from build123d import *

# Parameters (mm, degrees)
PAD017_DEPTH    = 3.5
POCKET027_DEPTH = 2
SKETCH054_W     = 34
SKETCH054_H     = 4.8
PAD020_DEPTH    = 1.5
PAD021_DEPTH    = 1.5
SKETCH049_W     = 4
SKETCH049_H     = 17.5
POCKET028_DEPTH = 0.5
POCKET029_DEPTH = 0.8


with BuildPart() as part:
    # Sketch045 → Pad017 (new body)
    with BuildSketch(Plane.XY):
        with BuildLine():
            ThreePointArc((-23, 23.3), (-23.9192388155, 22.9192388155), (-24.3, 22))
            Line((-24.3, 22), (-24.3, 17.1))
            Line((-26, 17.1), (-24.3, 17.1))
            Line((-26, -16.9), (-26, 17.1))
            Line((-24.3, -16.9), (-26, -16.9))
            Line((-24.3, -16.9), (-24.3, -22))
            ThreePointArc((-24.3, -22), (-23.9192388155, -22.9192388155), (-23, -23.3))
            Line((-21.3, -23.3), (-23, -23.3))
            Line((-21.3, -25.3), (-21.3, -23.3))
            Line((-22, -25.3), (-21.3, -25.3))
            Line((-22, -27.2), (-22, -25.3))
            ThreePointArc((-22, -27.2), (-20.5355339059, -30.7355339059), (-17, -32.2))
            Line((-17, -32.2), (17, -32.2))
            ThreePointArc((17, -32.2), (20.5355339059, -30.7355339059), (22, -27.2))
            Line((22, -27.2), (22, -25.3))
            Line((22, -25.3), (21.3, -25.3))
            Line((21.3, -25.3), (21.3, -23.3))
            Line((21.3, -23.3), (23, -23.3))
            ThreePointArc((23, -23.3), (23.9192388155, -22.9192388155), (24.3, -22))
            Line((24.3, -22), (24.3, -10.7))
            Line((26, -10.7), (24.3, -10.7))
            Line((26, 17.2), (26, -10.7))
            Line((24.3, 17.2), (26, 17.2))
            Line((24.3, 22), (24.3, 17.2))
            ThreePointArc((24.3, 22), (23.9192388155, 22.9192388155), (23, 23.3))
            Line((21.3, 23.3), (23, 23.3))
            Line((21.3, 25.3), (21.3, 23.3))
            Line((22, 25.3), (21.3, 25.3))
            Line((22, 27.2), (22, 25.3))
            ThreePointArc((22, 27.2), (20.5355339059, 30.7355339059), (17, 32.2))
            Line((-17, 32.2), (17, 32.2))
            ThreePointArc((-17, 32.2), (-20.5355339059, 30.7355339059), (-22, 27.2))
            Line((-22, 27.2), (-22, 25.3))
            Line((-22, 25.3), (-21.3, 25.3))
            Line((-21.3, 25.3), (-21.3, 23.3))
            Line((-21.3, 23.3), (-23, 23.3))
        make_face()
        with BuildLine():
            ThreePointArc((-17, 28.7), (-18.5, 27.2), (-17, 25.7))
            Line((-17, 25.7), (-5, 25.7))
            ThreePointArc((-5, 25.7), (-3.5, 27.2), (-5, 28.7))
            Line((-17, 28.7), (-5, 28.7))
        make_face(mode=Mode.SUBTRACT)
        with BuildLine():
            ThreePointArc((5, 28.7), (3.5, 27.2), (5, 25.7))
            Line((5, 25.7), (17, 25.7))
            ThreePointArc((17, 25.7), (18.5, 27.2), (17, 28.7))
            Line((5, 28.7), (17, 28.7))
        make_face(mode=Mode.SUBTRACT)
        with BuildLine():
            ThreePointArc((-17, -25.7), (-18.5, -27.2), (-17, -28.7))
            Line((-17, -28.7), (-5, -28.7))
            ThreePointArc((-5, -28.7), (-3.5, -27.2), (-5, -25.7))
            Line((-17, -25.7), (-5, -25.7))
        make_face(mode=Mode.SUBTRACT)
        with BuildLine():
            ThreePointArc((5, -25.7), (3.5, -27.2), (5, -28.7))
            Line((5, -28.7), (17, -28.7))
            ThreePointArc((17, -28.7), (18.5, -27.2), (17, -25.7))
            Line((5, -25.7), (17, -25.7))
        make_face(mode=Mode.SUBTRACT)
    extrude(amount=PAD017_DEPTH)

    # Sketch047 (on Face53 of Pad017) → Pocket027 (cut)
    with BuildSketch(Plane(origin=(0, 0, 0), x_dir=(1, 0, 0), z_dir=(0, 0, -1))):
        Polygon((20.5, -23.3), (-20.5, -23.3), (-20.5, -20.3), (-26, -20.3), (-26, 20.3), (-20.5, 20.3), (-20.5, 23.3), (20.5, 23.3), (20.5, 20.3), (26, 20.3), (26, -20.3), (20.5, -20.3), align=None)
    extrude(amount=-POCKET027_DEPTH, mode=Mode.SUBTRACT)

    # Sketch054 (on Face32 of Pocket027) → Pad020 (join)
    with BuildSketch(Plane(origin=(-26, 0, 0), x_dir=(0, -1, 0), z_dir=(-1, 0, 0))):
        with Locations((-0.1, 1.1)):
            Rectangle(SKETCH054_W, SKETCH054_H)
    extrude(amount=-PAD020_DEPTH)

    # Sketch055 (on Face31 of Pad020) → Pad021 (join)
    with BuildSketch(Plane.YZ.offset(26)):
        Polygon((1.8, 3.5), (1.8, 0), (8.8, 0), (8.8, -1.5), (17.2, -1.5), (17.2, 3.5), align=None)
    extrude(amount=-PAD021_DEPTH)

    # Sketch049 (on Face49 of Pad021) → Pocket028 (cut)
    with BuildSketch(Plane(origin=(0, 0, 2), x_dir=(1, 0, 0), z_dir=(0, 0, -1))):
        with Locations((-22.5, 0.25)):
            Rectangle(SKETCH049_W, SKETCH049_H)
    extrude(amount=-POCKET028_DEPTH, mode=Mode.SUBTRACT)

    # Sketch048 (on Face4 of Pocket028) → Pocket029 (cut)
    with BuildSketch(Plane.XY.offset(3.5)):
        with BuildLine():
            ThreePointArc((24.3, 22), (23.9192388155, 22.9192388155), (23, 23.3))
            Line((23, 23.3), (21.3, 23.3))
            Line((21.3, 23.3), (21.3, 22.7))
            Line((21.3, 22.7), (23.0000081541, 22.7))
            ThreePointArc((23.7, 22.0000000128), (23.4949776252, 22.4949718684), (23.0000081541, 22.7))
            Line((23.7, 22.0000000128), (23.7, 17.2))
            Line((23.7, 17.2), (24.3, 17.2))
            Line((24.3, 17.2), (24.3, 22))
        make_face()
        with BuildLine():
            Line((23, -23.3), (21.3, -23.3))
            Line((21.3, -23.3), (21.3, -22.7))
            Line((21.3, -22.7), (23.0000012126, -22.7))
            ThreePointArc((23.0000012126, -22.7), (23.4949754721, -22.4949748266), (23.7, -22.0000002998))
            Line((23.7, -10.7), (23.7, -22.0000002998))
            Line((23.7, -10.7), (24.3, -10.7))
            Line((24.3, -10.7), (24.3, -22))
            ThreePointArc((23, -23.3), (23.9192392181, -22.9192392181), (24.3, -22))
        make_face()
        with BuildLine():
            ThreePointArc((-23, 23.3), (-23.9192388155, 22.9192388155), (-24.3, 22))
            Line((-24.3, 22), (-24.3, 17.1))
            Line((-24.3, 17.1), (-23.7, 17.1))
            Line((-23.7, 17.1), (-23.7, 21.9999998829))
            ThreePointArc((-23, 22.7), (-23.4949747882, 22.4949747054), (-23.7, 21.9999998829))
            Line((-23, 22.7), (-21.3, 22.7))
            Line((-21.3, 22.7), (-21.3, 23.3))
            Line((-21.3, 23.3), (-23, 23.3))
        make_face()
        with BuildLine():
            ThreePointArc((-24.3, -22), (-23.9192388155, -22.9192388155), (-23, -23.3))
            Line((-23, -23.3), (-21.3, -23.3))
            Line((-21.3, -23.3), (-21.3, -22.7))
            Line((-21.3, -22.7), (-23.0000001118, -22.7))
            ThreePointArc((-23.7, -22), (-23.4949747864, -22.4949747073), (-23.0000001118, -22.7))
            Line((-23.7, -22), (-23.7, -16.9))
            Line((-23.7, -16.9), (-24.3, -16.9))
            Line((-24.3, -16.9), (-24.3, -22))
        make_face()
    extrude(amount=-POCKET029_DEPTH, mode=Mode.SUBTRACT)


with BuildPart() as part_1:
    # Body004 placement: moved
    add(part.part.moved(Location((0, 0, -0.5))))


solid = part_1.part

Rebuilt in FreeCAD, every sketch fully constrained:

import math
import FreeCAD as App
import Part
import Sketcher
from FreeCAD import Vector
Q = App.Units.Quantity


def add_polygon(sketch, points):
    """Adds a closed chain of lines whose ends are joined by coincident constraints."""
    first, n = sketch.GeometryCount, len(points)
    for a, b in zip(points, points[1:] + points[:1]):
        sketch.addGeometry(Part.LineSegment(App.Vector(*a, 0), App.Vector(*b, 0)), False)
    for i in range(n):
        sketch.addConstraint(Sketcher.Constraint("Coincident", first + i, 2, first + (i + 1) % n, 1))

doc = App.newDocument("Part")
params = doc.addObject("Spreadsheet::Sheet", "Params")
for row, (alias, value) in enumerate([
    ("sketch1_radius", "5 mm"),
    ("sketch1_radius2", "1.3 mm"),
    ("sketch1_radius3", "1.5 mm"),
    ("sketch1_width", "34 mm"),
    ("sketch1_width2", "12 mm"),
    ("pad1_length", "3.5 mm"),
    ("sketch2_width", "41 mm"),
    ("sketch2_height", "3 mm"),
    ("sketch2_width2", "5.5 mm"),
    ("sketch2_height2", "40.6 mm"),
    ("pocket1_length", "2 mm"),
    ("sketch3_width", "34 mm"),
    ("sketch3_height", "4.8 mm"),
    ("pad2_length", "1.5 mm"),
    ("sketch4_width", "7 mm"),
    ("sketch4_height", "5 mm"),
    ("sketch4_width2", "8.4 mm"),
    ("sketch4_height2", "3.5 mm"),
    ("pad3_length", "1.5 mm"),
    ("sketch5_width", "4 mm"),
    ("sketch5_height", "17.5 mm"),
    ("pocket2_length", "0.5 mm"),
    ("sketch6_radius", "1.3 mm"),
    ("sketch6_radius2", "0.7 mm"),
    ("sketch6_width", "1.7 mm"),
    ("sketch6_height", "4.8 mm"),
    ("sketch6_height2", "11.3 mm"),
    ("pocket3_length", "0.8 mm"),
], start=1):
    params.set(f"A{row}", alias)
    params.set(f"B{row}", "=" + value)
    params.setAlias(f"B{row}", alias)

body = doc.addObject("PartDesign::Body", "Body")

# Sketch on XY plane
sketch1 = body.newObject("Sketcher::SketchObject", "Sketch")
sketch1.AttachmentSupport = (doc.getObject("XY_Plane"), [""])
sketch1.MapMode = "FlatFace"
sketch1.addGeometry(Part.ArcOfCircle(Part.Circle(Vector(-23, 22, 0), Vector(0, 0, 1), 1.3), math.radians(90), math.radians(180)), False)
sketch1.addGeometry(Part.LineSegment(Vector(-24.3, 22, 0), Vector(-24.3, 17.1, 0)), False)
sketch1.addGeometry(Part.LineSegment(Vector(-24.3, 17.1, 0), Vector(-26, 17.1, 0)), False)
sketch1.addGeometry(Part.LineSegment(Vector(-26, 17.1, 0), Vector(-26, -16.9, 0)), False)
sketch1.addGeometry(Part.LineSegment(Vector(-26, -16.9, 0), Vector(-24.3, -16.9, 0)), False)
sketch1.addGeometry(Part.LineSegment(Vector(-24.3, -16.9, 0), Vector(-24.3, -22, 0)), False)
sketch1.addGeometry(Part.ArcOfCircle(Part.Circle(Vector(-23, -22, 0), Vector(0, 0, 1), 1.3), math.radians(180), math.radians(270)), False)
sketch1.addGeometry(Part.LineSegment(Vector(-23, -23.3, 0), Vector(-21.3, -23.3, 0)), False)
sketch1.addGeometry(Part.LineSegment(Vector(-21.3, -23.3, 0), Vector(-21.3, -25.3, 0)), False)
sketch1.addGeometry(Part.LineSegment(Vector(-21.3, -25.3, 0), Vector(-22, -25.3, 0)), False)
sketch1.addGeometry(Part.LineSegment(Vector(-22, -25.3, 0), Vector(-22, -27.2, 0)), False)
sketch1.addGeometry(Part.ArcOfCircle(Part.Circle(Vector(-17, -27.2, 0), Vector(0, 0, 1), 5), math.radians(180), math.radians(270)), False)
sketch1.addGeometry(Part.LineSegment(Vector(-17, -32.2, 0), Vector(17, -32.2, 0)), False)
sketch1.addGeometry(Part.ArcOfCircle(Part.Circle(Vector(17, -27.2, 0), Vector(0, 0, 1), 5), math.radians(-90), math.radians(0)), False)
sketch1.addGeometry(Part.LineSegment(Vector(22, -27.2, 0), Vector(22, -25.3, 0)), False)
sketch1.addGeometry(Part.LineSegment(Vector(22, -25.3, 0), Vector(21.3, -25.3, 0)), False)
sketch1.addGeometry(Part.LineSegment(Vector(21.3, -25.3, 0), Vector(21.3, -23.3, 0)), False)
sketch1.addGeometry(Part.LineSegment(Vector(21.3, -23.3, 0), Vector(23, -23.3, 0)), False)
sketch1.addGeometry(Part.ArcOfCircle(Part.Circle(Vector(23, -22, 0), Vector(0, 0, 1), 1.3), math.radians(-90), math.radians(0)), False)
sketch1.addGeometry(Part.LineSegment(Vector(24.3, -22, 0), Vector(24.3, -10.7, 0)), False)
sketch1.addGeometry(Part.LineSegment(Vector(24.3, -10.7, 0), Vector(26, -10.7, 0)), False)
sketch1.addGeometry(Part.LineSegment(Vector(26, -10.7, 0), Vector(26, 17.2, 0)), False)
sketch1.addGeometry(Part.LineSegment(Vector(26, 17.2, 0), Vector(24.3, 17.2, 0)), False)
sketch1.addGeometry(Part.LineSegment(Vector(24.3, 17.2, 0), Vector(24.3, 22, 0)), False)
sketch1.addGeometry(Part.ArcOfCircle(Part.Circle(Vector(23, 22, 0), Vector(0, 0, 1), 1.3), math.radians(0), math.radians(90)), False)
sketch1.addGeometry(Part.LineSegment(Vector(23, 23.3, 0), Vector(21.3, 23.3, 0)), False)
sketch1.addGeometry(Part.LineSegment(Vector(21.3, 23.3, 0), Vector(21.3, 25.3, 0)), False)
sketch1.addGeometry(Part.LineSegment(Vector(21.3, 25.3, 0), Vector(22, 25.3, 0)), False)
sketch1.addGeometry(Part.LineSegment(Vector(22, 25.3, 0), Vector(22, 27.2, 0)), False)
sketch1.addGeometry(Part.ArcOfCircle(Part.Circle(Vector(17, 27.2, 0), Vector(0, 0, 1), 5), math.radians(0), math.radians(90)), False)
sketch1.addGeometry(Part.LineSegment(Vector(17, 32.2, 0), Vector(-17, 32.2, 0)), False)
sketch1.addGeometry(Part.ArcOfCircle(Part.Circle(Vector(-17, 27.2, 0), Vector(0, 0, 1), 5), math.radians(90), math.radians(180)), False)
sketch1.addGeometry(Part.LineSegment(Vector(-22, 27.2, 0), Vector(-22, 25.3, 0)), False)
sketch1.addGeometry(Part.LineSegment(Vector(-22, 25.3, 0), Vector(-21.3, 25.3, 0)), False)
sketch1.addGeometry(Part.LineSegment(Vector(-21.3, 25.3, 0), Vector(-21.3, 23.3, 0)), False)
sketch1.addGeometry(Part.LineSegment(Vector(-21.3, 23.3, 0), Vector(-23, 23.3, 0)), False)
sketch1.addGeometry(Part.ArcOfCircle(Part.Circle(Vector(-17, -27.2, 0), Vector(0, 0, 1), 1.5), math.radians(90), math.radians(270)), False)
sketch1.addGeometry(Part.LineSegment(Vector(-17, -25.7, 0), Vector(-5, -25.7, 0)), False)
sketch1.addGeometry(Part.ArcOfCircle(Part.Circle(Vector(-5, -27.2, 0), Vector(0, 0, 1), 1.5), math.radians(-90), math.radians(90)), False)
sketch1.addGeometry(Part.LineSegment(Vector(-5, -28.7, 0), Vector(-17, -28.7, 0)), False)
sketch1.addGeometry(Part.ArcOfCircle(Part.Circle(Vector(5, -27.2, 0), Vector(0, 0, 1), 1.5), math.radians(90), math.radians(270)), False)
sketch1.addGeometry(Part.LineSegment(Vector(5, -25.7, 0), Vector(17, -25.7, 0)), False)
sketch1.addGeometry(Part.ArcOfCircle(Part.Circle(Vector(17, -27.2, 0), Vector(0, 0, 1), 1.5), math.radians(-90), math.radians(90)), False)
sketch1.addGeometry(Part.LineSegment(Vector(17, -28.7, 0), Vector(5, -28.7, 0)), False)
sketch1.addGeometry(Part.ArcOfCircle(Part.Circle(Vector(-17, 27.2, 0), Vector(0, 0, 1), 1.5), math.radians(90), math.radians(270)), False)
sketch1.addGeometry(Part.LineSegment(Vector(-17, 28.7, 0), Vector(-5, 28.7, 0)), False)
sketch1.addGeometry(Part.ArcOfCircle(Part.Circle(Vector(-5, 27.2, 0), Vector(0, 0, 1), 1.5), math.radians(-90), math.radians(90)), False)
sketch1.addGeometry(Part.LineSegment(Vector(-5, 25.7, 0), Vector(-17, 25.7, 0)), False)
sketch1.addGeometry(Part.ArcOfCircle(Part.Circle(Vector(5, 27.2, 0), Vector(0, 0, 1), 1.5), math.radians(90), math.radians(270)), False)
sketch1.addGeometry(Part.LineSegment(Vector(5, 28.7, 0), Vector(17, 28.7, 0)), False)
sketch1.addGeometry(Part.ArcOfCircle(Part.Circle(Vector(17, 27.2, 0), Vector(0, 0, 1), 1.5), math.radians(-90), math.radians(90)), False)
sketch1.addGeometry(Part.LineSegment(Vector(17, 25.7, 0), Vector(5, 25.7, 0)), False)
sketch1.addConstraint(Sketcher.Constraint("Tangent", 0, 2, 1, 1))
sketch1.addConstraint(Sketcher.Constraint("Coincident", 1, 2, 2, 1))
sketch1.addConstraint(Sketcher.Constraint("Coincident", 2, 2, 3, 1))
sketch1.addConstraint(Sketcher.Constraint("Coincident", 3, 2, 4, 1))
sketch1.addConstraint(Sketcher.Constraint("Coincident", 4, 2, 5, 1))
sketch1.addConstraint(Sketcher.Constraint("Tangent", 5, 2, 6, 1))
sketch1.addConstraint(Sketcher.Constraint("Tangent", 6, 2, 7, 1))
sketch1.addConstraint(Sketcher.Constraint("Coincident", 7, 2, 8, 1))
sketch1.addConstraint(Sketcher.Constraint("Coincident", 8, 2, 9, 1))
sketch1.addConstraint(Sketcher.Constraint("Coincident", 9, 2, 10, 1))
sketch1.addConstraint(Sketcher.Constraint("Tangent", 10, 2, 11, 1))
sketch1.addConstraint(Sketcher.Constraint("Tangent", 11, 2, 12, 1))
sketch1.addConstraint(Sketcher.Constraint("Tangent", 12, 2, 13, 1))
sketch1.addConstraint(Sketcher.Constraint("Tangent", 13, 2, 14, 1))
sketch1.addConstraint(Sketcher.Constraint("Coincident", 14, 2, 15, 1))
sketch1.addConstraint(Sketcher.Constraint("Coincident", 15, 2, 16, 1))
sketch1.addConstraint(Sketcher.Constraint("Coincident", 16, 2, 17, 1))
sketch1.addConstraint(Sketcher.Constraint("Tangent", 17, 2, 18, 1))
sketch1.addConstraint(Sketcher.Constraint("Tangent", 18, 2, 19, 1))
sketch1.addConstraint(Sketcher.Constraint("Coincident", 19, 2, 20, 1))
sketch1.addConstraint(Sketcher.Constraint("Coincident", 20, 2, 21, 1))
sketch1.addConstraint(Sketcher.Constraint("Coincident", 21, 2, 22, 1))
sketch1.addConstraint(Sketcher.Constraint("Coincident", 22, 2, 23, 1))
sketch1.addConstraint(Sketcher.Constraint("Tangent", 23, 2, 24, 1))
sketch1.addConstraint(Sketcher.Constraint("Tangent", 24, 2, 25, 1))
sketch1.addConstraint(Sketcher.Constraint("Coincident", 25, 2, 26, 1))
sketch1.addConstraint(Sketcher.Constraint("Coincident", 26, 2, 27, 1))
sketch1.addConstraint(Sketcher.Constraint("Coincident", 27, 2, 28, 1))
sketch1.addConstraint(Sketcher.Constraint("Tangent", 28, 2, 29, 1))
sketch1.addConstraint(Sketcher.Constraint("Tangent", 29, 2, 30, 1))
sketch1.addConstraint(Sketcher.Constraint("Tangent", 30, 2, 31, 1))
sketch1.addConstraint(Sketcher.Constraint("Tangent", 31, 2, 32, 1))
sketch1.addConstraint(Sketcher.Constraint("Coincident", 32, 2, 33, 1))
sketch1.addConstraint(Sketcher.Constraint("Coincident", 33, 2, 34, 1))
sketch1.addConstraint(Sketcher.Constraint("Coincident", 34, 2, 35, 1))
sketch1.addConstraint(Sketcher.Constraint("Tangent", 35, 2, 0, 1))
sketch1.addConstraint(Sketcher.Constraint("Tangent", 36, 1, 37, 1))
sketch1.addConstraint(Sketcher.Constraint("Tangent", 37, 2, 38, 2))
sketch1.addConstraint(Sketcher.Constraint("Tangent", 38, 1, 39, 1))
sketch1.addConstraint(Sketcher.Constraint("Tangent", 39, 2, 36, 2))
sketch1.addConstraint(Sketcher.Constraint("Tangent", 40, 1, 41, 1))
sketch1.addConstraint(Sketcher.Constraint("Tangent", 41, 2, 42, 2))
sketch1.addConstraint(Sketcher.Constraint("Tangent", 42, 1, 43, 1))
sketch1.addConstraint(Sketcher.Constraint("Tangent", 43, 2, 40, 2))
sketch1.addConstraint(Sketcher.Constraint("Tangent", 44, 1, 45, 1))
sketch1.addConstraint(Sketcher.Constraint("Tangent", 45, 2, 46, 2))
sketch1.addConstraint(Sketcher.Constraint("Tangent", 46, 1, 47, 1))
sketch1.addConstraint(Sketcher.Constraint("Tangent", 47, 2, 44, 2))
sketch1.addConstraint(Sketcher.Constraint("Tangent", 48, 1, 49, 1))
sketch1.addConstraint(Sketcher.Constraint("Tangent", 49, 2, 50, 2))
sketch1.addConstraint(Sketcher.Constraint("Tangent", 50, 1, 51, 1))
sketch1.addConstraint(Sketcher.Constraint("Tangent", 51, 2, 48, 2))
sketch1.addConstraint(Sketcher.Constraint("Vertical", 1))
sketch1.addConstraint(Sketcher.Constraint("Horizontal", 2))
sketch1.addConstraint(Sketcher.Constraint("Vertical", 3))
sketch1.addConstraint(Sketcher.Constraint("Horizontal", 4))
sketch1.addConstraint(Sketcher.Constraint("Vertical", 5))
sketch1.addConstraint(Sketcher.Constraint("Horizontal", 7))
sketch1.addConstraint(Sketcher.Constraint("Vertical", 8))
sketch1.addConstraint(Sketcher.Constraint("Horizontal", 9))
sketch1.addConstraint(Sketcher.Constraint("Vertical", 10))
sketch1.addConstraint(Sketcher.Constraint("Horizontal", 12))
sketch1.addConstraint(Sketcher.Constraint("Vertical", 14))
sketch1.addConstraint(Sketcher.Constraint("Horizontal", 15))
sketch1.addConstraint(Sketcher.Constraint("Vertical", 16))
sketch1.addConstraint(Sketcher.Constraint("Horizontal", 17))
sketch1.addConstraint(Sketcher.Constraint("Vertical", 19))
sketch1.addConstraint(Sketcher.Constraint("Horizontal", 20))
sketch1.addConstraint(Sketcher.Constraint("Vertical", 21))
sketch1.addConstraint(Sketcher.Constraint("Horizontal", 22))
sketch1.addConstraint(Sketcher.Constraint("Vertical", 23))
sketch1.addConstraint(Sketcher.Constraint("Horizontal", 25))
sketch1.addConstraint(Sketcher.Constraint("Vertical", 26))
sketch1.addConstraint(Sketcher.Constraint("Horizontal", 27))
sketch1.addConstraint(Sketcher.Constraint("Vertical", 28))
sketch1.addConstraint(Sketcher.Constraint("Horizontal", 30))
sketch1.addConstraint(Sketcher.Constraint("Vertical", 32))
sketch1.addConstraint(Sketcher.Constraint("Horizontal", 33))
sketch1.addConstraint(Sketcher.Constraint("Vertical", 34))
sketch1.addConstraint(Sketcher.Constraint("Horizontal", 35))
sketch1.addConstraint(Sketcher.Constraint("Horizontal", 37))
sketch1.addConstraint(Sketcher.Constraint("Horizontal", 39))
sketch1.addConstraint(Sketcher.Constraint("Horizontal", 41))
sketch1.addConstraint(Sketcher.Constraint("Horizontal", 43))
sketch1.addConstraint(Sketcher.Constraint("Horizontal", 45))
sketch1.addConstraint(Sketcher.Constraint("Horizontal", 47))
sketch1.addConstraint(Sketcher.Constraint("Horizontal", 49))
sketch1.addConstraint(Sketcher.Constraint("Horizontal", 51))
sketch1.addConstraint(Sketcher.Constraint("Coincident", 36, 3, 11, 3))
sketch1.addConstraint(Sketcher.Constraint("Coincident", 42, 3, 13, 3))
sketch1.addConstraint(Sketcher.Constraint("Coincident", 44, 3, 31, 3))
sketch1.addConstraint(Sketcher.Constraint("Coincident", 50, 3, 29, 3))
sketch1.addConstraint(Sketcher.Constraint("Equal", 0, 6))
sketch1.addConstraint(Sketcher.Constraint("Equal", 11, 13))
sketch1.addConstraint(Sketcher.Constraint("Equal", 6, 18))
sketch1.addConstraint(Sketcher.Constraint("Equal", 18, 24))
sketch1.addConstraint(Sketcher.Constraint("Equal", 13, 29))
sketch1.addConstraint(Sketcher.Constraint("Equal", 29, 31))
sketch1.addConstraint(Sketcher.Constraint("Equal", 38, 40))
sketch1.addConstraint(Sketcher.Constraint("Equal", 42, 44))
sketch1.addConstraint(Sketcher.Constraint("Equal", 46, 48))
sketch1.addConstraint(Sketcher.Constraint("Symmetric", 0, 3, 18, 3, -1, 1))
sketch1.addConstraint(Sketcher.Constraint("Symmetric", 6, 3, 24, 3, -1, 1))
sketch1.addConstraint(Sketcher.Constraint("Symmetric", 11, 3, 29, 3, -1, 1))
sketch1.addConstraint(Sketcher.Constraint("Symmetric", 8, 2, 26, 2, -1, 1))
sketch1.addConstraint(Sketcher.Constraint("Symmetric", 14, 2, 32, 2, -1, 1))
sketch1.addConstraint(Sketcher.Constraint("Symmetric", 6, 3, 18, 3, -2))
sketch1.addConstraint(Sketcher.Constraint("Symmetric", 9, 2, 14, 2, -2))
sketch1.addConstraint(Sketcher.Constraint("Vertical", 38, 3, 46, 3))
sketch1.addConstraint(Sketcher.Constraint("Vertical", 40, 3, 48, 3))
sketch1.addConstraint(Sketcher.Constraint("Vertical", 16, 2, 25, 2))
sketch1.addConstraint(Sketcher.Constraint("Vertical", 8, 2, 33, 2))
sketch1.addConstraint(Sketcher.Constraint("Equal", 4, 7))
sketch1.addConstraint(Sketcher.Constraint("Equal", 17, 20))
sketch1.addConstraint(Sketcher.Constraint("Equal", 39, 41))
sketch1.addConstraint(Sketcher.Constraint("Equal", 30, 3))
sketch1.addConstraint(Sketcher.Constraint("Radius", 11, Q("5 mm")))
sketch1.addConstraint(Sketcher.Constraint("Radius", 0, Q("1.3 mm")))
sketch1.addConstraint(Sketcher.Constraint("Radius", 36, Q("1.5 mm")))
sketch1.addConstraint(Sketcher.Constraint("DistanceX", 12, 1, 12, 2, Q("34 mm")))
sketch1.addConstraint(Sketcher.Constraint("DistanceX", 37, 1, 37, 2, Q("12 mm")))
sketch1.addConstraint(Sketcher.Constraint("DistanceY", 8, 2, 8, 1, Q("2 mm")))
sketch1.addConstraint(Sketcher.Constraint("DistanceX", 2, 2, 2, 1, Q("1.7 mm")))
sketch1.addConstraint(Sketcher.Constraint("DistanceX", 9, 2, 9, 1, Q("0.7 mm")))
sketch1.addConstraint(Sketcher.Constraint("DistanceY", 1, 2, 1, 1, Q("4.9 mm")))
sketch1.addConstraint(Sketcher.Constraint("DistanceY", 5, 2, 5, 1, Q("5.1 mm")))
sketch1.addConstraint(Sketcher.Constraint("DistanceY", 10, 2, 10, 1, Q("1.9 mm")))
sketch1.addConstraint(Sketcher.Constraint("DistanceY", 19, 1, 19, 2, Q("11.3 mm")))
sketch1.addConstraint(Sketcher.Constraint("DistanceY", 21, 1, 21, 2, Q("27.9 mm")))
sketch1.setExpression("Constraints[116]", "Params.sketch1_radius")
sketch1.setExpression("Constraints[117]", "Params.sketch1_radius2")
sketch1.setExpression("Constraints[118]", "Params.sketch1_radius3")
sketch1.setExpression("Constraints[119]", "Params.sketch1_width")
sketch1.setExpression("Constraints[120]", "Params.sketch1_width2")
pad1 = body.newObject("PartDesign::Pad", "Pad")
pad1.Profile = sketch1
pad1.setExpression("Length", "Params.pad1_length")

# Sketch on XY plane
sketch2 = body.newObject("Sketcher::SketchObject", "Sketch001")
sketch2.AttachmentSupport = (doc.getObject("XY_Plane"), [""])
sketch2.MapMode = "FlatFace"
add_polygon(sketch2, [(-20.5, 23.3), (20.5, 23.3), (20.5, 20.3), (26, 20.3), (26, -20.3), (20.5, -20.3), (20.5, -23.3), (-20.5, -23.3), (-20.5, -20.3), (-26, -20.3), (-26, 20.3), (-20.5, 20.3)])  # lines 0-11
sketch2.addConstraint(Sketcher.Constraint("Horizontal", 0))
sketch2.addConstraint(Sketcher.Constraint("Vertical", 1))
sketch2.addConstraint(Sketcher.Constraint("Horizontal", 2))
sketch2.addConstraint(Sketcher.Constraint("Vertical", 3))
sketch2.addConstraint(Sketcher.Constraint("Horizontal", 4))
sketch2.addConstraint(Sketcher.Constraint("Vertical", 5))
sketch2.addConstraint(Sketcher.Constraint("Horizontal", 6))
sketch2.addConstraint(Sketcher.Constraint("Vertical", 7))
sketch2.addConstraint(Sketcher.Constraint("Horizontal", 8))
sketch2.addConstraint(Sketcher.Constraint("Vertical", 9))
sketch2.addConstraint(Sketcher.Constraint("Horizontal", 10))
sketch2.addConstraint(Sketcher.Constraint("Vertical", 11))
sketch2.addConstraint(Sketcher.Constraint("Symmetric", 0, 2, 6, 2, -1, 1))
sketch2.addConstraint(Sketcher.Constraint("Symmetric", 2, 2, 8, 2, -1, 1))
sketch2.addConstraint(Sketcher.Constraint("Symmetric", 4, 2, 10, 2, -1, 1))
sketch2.addConstraint(Sketcher.Constraint("Symmetric", 4, 2, 7, 2, -2))
sketch2.addConstraint(Sketcher.Constraint("DistanceX", 0, 1, 0, 2, Q("41 mm")))
sketch2.addConstraint(Sketcher.Constraint("DistanceY", 1, 2, 1, 1, Q("3 mm")))
sketch2.addConstraint(Sketcher.Constraint("DistanceX", 2, 1, 2, 2, Q("5.5 mm")))
sketch2.addConstraint(Sketcher.Constraint("DistanceY", 3, 2, 3, 1, Q("40.6 mm")))
sketch2.setExpression("Constraints[28]", "Params.sketch2_width")
sketch2.setExpression("Constraints[29]", "Params.sketch2_height")
sketch2.setExpression("Constraints[30]", "Params.sketch2_width2")
sketch2.setExpression("Constraints[31]", "Params.sketch2_height2")
pocket1 = body.newObject("PartDesign::Pocket", "Pocket")
pocket1.Profile = sketch2
pocket1.setExpression("Length", "Params.pocket1_length")
pocket1.Reversed = True

# Sketch on YZ plane
sketch3 = body.newObject("Sketcher::SketchObject", "Sketch002")
sketch3.AttachmentSupport = (doc.getObject("YZ_Plane"), [""])
sketch3.MapMode = "FlatFace"
sketch3.AttachmentOffset = App.Placement(Vector(0, 0, -26), App.Rotation())
add_polygon(sketch3, [(17.1, 3.5), (17.1, -1.3), (-16.9, -1.3), (-16.9, 3.5)])  # lines 0-3
sketch3.addConstraint(Sketcher.Constraint("Vertical", 0))
sketch3.addConstraint(Sketcher.Constraint("Horizontal", 1))
sketch3.addConstraint(Sketcher.Constraint("Vertical", 2))
sketch3.addConstraint(Sketcher.Constraint("Horizontal", 3))
sketch3.addConstraint(Sketcher.Constraint("DistanceX", 1, 2, 1, 1, Q("34 mm")))
sketch3.addConstraint(Sketcher.Constraint("DistanceY", 0, 2, 0, 1, Q("4.8 mm")))
sketch3.addConstraint(Sketcher.Constraint("DistanceX", -1, 1, 0, 2, Q("17.1 mm")))
sketch3.addConstraint(Sketcher.Constraint("DistanceY", 0, 2, -1, 1, Q("1.3 mm")))
sketch3.setExpression("Constraints[8]", "Params.sketch3_width")
sketch3.setExpression("Constraints[9]", "Params.sketch3_height")
pad2 = body.newObject("PartDesign::Pad", "Pad001")
pad2.Profile = sketch3
pad2.setExpression("Length", "Params.pad2_length")

# Sketch on YZ plane
sketch4 = body.newObject("Sketcher::SketchObject", "Sketch003")
sketch4.AttachmentSupport = (doc.getObject("YZ_Plane"), [""])
sketch4.MapMode = "FlatFace"
sketch4.AttachmentOffset = App.Placement(Vector(0, 0, 26), App.Rotation())
add_polygon(sketch4, [(1.8, 3.5), (1.8, 0), (8.8, 0), (8.8, -1.5), (17.2, -1.5), (17.2, 3.5)])  # lines 0-5
sketch4.addConstraint(Sketcher.Constraint("Vertical", 0))
sketch4.addConstraint(Sketcher.Constraint("Horizontal", 1))
sketch4.addConstraint(Sketcher.Constraint("Vertical", 2))
sketch4.addConstraint(Sketcher.Constraint("Horizontal", 3))
sketch4.addConstraint(Sketcher.Constraint("Vertical", 4))
sketch4.addConstraint(Sketcher.Constraint("Horizontal", 5))
sketch4.addConstraint(Sketcher.Constraint("PointOnObject", 0, 2, -1))
sketch4.addConstraint(Sketcher.Constraint("DistanceX", 1, 1, 1, 2, Q("7 mm")))
sketch4.addConstraint(Sketcher.Constraint("DistanceY", 4, 1, 4, 2, Q("5 mm")))
sketch4.addConstraint(Sketcher.Constraint("DistanceX", 3, 1, 3, 2, Q("8.4 mm")))
sketch4.addConstraint(Sketcher.Constraint("DistanceY", 0, 2, 0, 1, Q("3.5 mm")))
sketch4.addConstraint(Sketcher.Constraint("DistanceX", -1, 1, 0, 2, Q("1.8 mm")))
sketch4.setExpression("Constraints[13]", "Params.sketch4_width")
sketch4.setExpression("Constraints[14]", "Params.sketch4_height")
sketch4.setExpression("Constraints[15]", "Params.sketch4_width2")
sketch4.setExpression("Constraints[16]", "Params.sketch4_height2")
pad3 = body.newObject("PartDesign::Pad", "Pad002")
pad3.Profile = sketch4
pad3.setExpression("Length", "Params.pad3_length")
pad3.Reversed = True

# Sketch on XY plane
sketch5 = body.newObject("Sketcher::SketchObject", "Sketch004")
sketch5.AttachmentSupport = (doc.getObject("XY_Plane"), [""])
sketch5.MapMode = "FlatFace"
sketch5.AttachmentOffset = App.Placement(Vector(0, 0, 2), App.Rotation())
add_polygon(sketch5, [(-24.5, -9), (-24.5, 8.5), (-20.5, 8.5), (-20.5, -9)])  # lines 0-3
sketch5.addConstraint(Sketcher.Constraint("Vertical", 0))
sketch5.addConstraint(Sketcher.Constraint("Horizontal", 1))
sketch5.addConstraint(Sketcher.Constraint("Vertical", 2))
sketch5.addConstraint(Sketcher.Constraint("Horizontal", 3))
sketch5.addConstraint(Sketcher.Constraint("DistanceX", 1, 1, 1, 2, Q("4 mm")))
sketch5.addConstraint(Sketcher.Constraint("DistanceY", 0, 1, 0, 2, Q("17.5 mm")))
sketch5.addConstraint(Sketcher.Constraint("DistanceY", 2, 2, -1, 1, Q("9 mm")))
sketch5.addConstraint(Sketcher.Constraint("DistanceX", 0, 2, -1, 1, Q("24.5 mm")))
sketch5.setExpression("Constraints[8]", "Params.sketch5_width")
sketch5.setExpression("Constraints[9]", "Params.sketch5_height")
pocket2 = body.newObject("PartDesign::Pocket", "Pocket001")
pocket2.Profile = sketch5
pocket2.setExpression("Length", "Params.pocket2_length")
pocket2.Reversed = True

# Sketch on XY plane
sketch6 = body.newObject("Sketcher::SketchObject", "Sketch005")
sketch6.AttachmentSupport = (doc.getObject("XY_Plane"), [""])
sketch6.MapMode = "FlatFace"
sketch6.AttachmentOffset = App.Placement(Vector(0, 0, 3.5), App.Rotation())
sketch6.addGeometry(Part.ArcOfCircle(Part.Circle(Vector(23, 22, 0), Vector(0, 0, 1), 1.3), math.radians(0), math.radians(90)), False)
sketch6.addGeometry(Part.LineSegment(Vector(23, 23.3, 0), Vector(21.3, 23.3, 0)), False)
sketch6.addGeometry(Part.LineSegment(Vector(21.3, 23.3, 0), Vector(21.3, 22.7, 0)), False)
sketch6.addGeometry(Part.LineSegment(Vector(21.3, 22.7, 0), Vector(23, 22.7, 0)), False)
sketch6.addGeometry(Part.ArcOfCircle(Part.Circle(Vector(23, 22, 0), Vector(0, 0, 1), 0.7), math.radians(0), math.radians(90)), False)
sketch6.addGeometry(Part.LineSegment(Vector(23.7, 22, 0), Vector(23.7, 17.2, 0)), False)
sketch6.addGeometry(Part.LineSegment(Vector(23.7, 17.2, 0), Vector(24.3, 17.2, 0)), False)
sketch6.addGeometry(Part.LineSegment(Vector(24.3, 17.2, 0), Vector(24.3, 22, 0)), False)
sketch6.addGeometry(Part.LineSegment(Vector(21.3, -23.3, 0), Vector(23, -23.3, 0)), False)
sketch6.addGeometry(Part.ArcOfCircle(Part.Circle(Vector(23, -22, 0), Vector(0, 0, 1), 1.3), math.radians(-90), math.radians(0)), False)
sketch6.addGeometry(Part.LineSegment(Vector(24.3, -22, 0), Vector(24.3, -10.7, 0)), False)
sketch6.addGeometry(Part.LineSegment(Vector(24.3, -10.7, 0), Vector(23.7, -10.7, 0)), False)
sketch6.addGeometry(Part.LineSegment(Vector(23.7, -10.7, 0), Vector(23.7, -22, 0)), False)
sketch6.addGeometry(Part.ArcOfCircle(Part.Circle(Vector(23, -22, 0), Vector(0, 0, 1), 0.7), math.radians(-90), math.radians(0)), False)
sketch6.addGeometry(Part.LineSegment(Vector(23, -22.7, 0), Vector(21.3, -22.7, 0)), False)
sketch6.addGeometry(Part.LineSegment(Vector(21.3, -22.7, 0), Vector(21.3, -23.3, 0)), False)
sketch6.addGeometry(Part.ArcOfCircle(Part.Circle(Vector(-23, 22, 0), Vector(0, 0, 1), 1.3), math.radians(90), math.radians(180)), False)
sketch6.addGeometry(Part.LineSegment(Vector(-24.3, 22, 0), Vector(-24.3, 17.1, 0)), False)
sketch6.addGeometry(Part.LineSegment(Vector(-24.3, 17.1, 0), Vector(-23.7, 17.1, 0)), False)
sketch6.addGeometry(Part.LineSegment(Vector(-23.7, 17.1, 0), Vector(-23.7, 22, 0)), False)
sketch6.addGeometry(Part.ArcOfCircle(Part.Circle(Vector(-23, 22, 0), Vector(0, 0, 1), 0.7), math.radians(90), math.radians(180)), False)
sketch6.addGeometry(Part.LineSegment(Vector(-23, 22.7, 0), Vector(-21.3, 22.7, 0)), False)
sketch6.addGeometry(Part.LineSegment(Vector(-21.3, 22.7, 0), Vector(-21.3, 23.3, 0)), False)
sketch6.addGeometry(Part.LineSegment(Vector(-21.3, 23.3, 0), Vector(-23, 23.3, 0)), False)
sketch6.addGeometry(Part.ArcOfCircle(Part.Circle(Vector(-23, -22, 0), Vector(0, 0, 1), 1.3), math.radians(180), math.radians(270)), False)
sketch6.addGeometry(Part.LineSegment(Vector(-23, -23.3, 0), Vector(-21.3, -23.3, 0)), False)
sketch6.addGeometry(Part.LineSegment(Vector(-21.3, -23.3, 0), Vector(-21.3, -22.7, 0)), False)
sketch6.addGeometry(Part.LineSegment(Vector(-21.3, -22.7, 0), Vector(-23, -22.7, 0)), False)
sketch6.addGeometry(Part.ArcOfCircle(Part.Circle(Vector(-23, -22, 0), Vector(0, 0, 1), 0.7), math.radians(180), math.radians(270)), False)
sketch6.addGeometry(Part.LineSegment(Vector(-23.7, -22, 0), Vector(-23.7, -16.9, 0)), False)
sketch6.addGeometry(Part.LineSegment(Vector(-23.7, -16.9, 0), Vector(-24.3, -16.9, 0)), False)
sketch6.addGeometry(Part.LineSegment(Vector(-24.3, -16.9, 0), Vector(-24.3, -22, 0)), False)
sketch6.addConstraint(Sketcher.Constraint("Tangent", 0, 2, 1, 1))
sketch6.addConstraint(Sketcher.Constraint("Coincident", 1, 2, 2, 1))
sketch6.addConstraint(Sketcher.Constraint("Coincident", 2, 2, 3, 1))
sketch6.addConstraint(Sketcher.Constraint("Coincident", 3, 2, 4, 2))
sketch6.addConstraint(Sketcher.Constraint("Tangent", 4, 1, 5, 1))
sketch6.addConstraint(Sketcher.Constraint("Coincident", 5, 2, 6, 1))
sketch6.addConstraint(Sketcher.Constraint("Coincident", 6, 2, 7, 1))
sketch6.addConstraint(Sketcher.Constraint("Tangent", 7, 2, 0, 1))
sketch6.addConstraint(Sketcher.Constraint("Tangent", 8, 2, 9, 1))
sketch6.addConstraint(Sketcher.Constraint("Tangent", 9, 2, 10, 1))
sketch6.addConstraint(Sketcher.Constraint("Coincident", 10, 2, 11, 1))
sketch6.addConstraint(Sketcher.Constraint("Coincident", 11, 2, 12, 1))
sketch6.addConstraint(Sketcher.Constraint("Tangent", 12, 2, 13, 2))
sketch6.addConstraint(Sketcher.Constraint("Tangent", 13, 1, 14, 1))
sketch6.addConstraint(Sketcher.Constraint("Coincident", 14, 2, 15, 1))
sketch6.addConstraint(Sketcher.Constraint("Coincident", 15, 2, 8, 1))
sketch6.addConstraint(Sketcher.Constraint("Tangent", 16, 2, 17, 1))
sketch6.addConstraint(Sketcher.Constraint("Coincident", 17, 2, 18, 1))
sketch6.addConstraint(Sketcher.Constraint("Coincident", 18, 2, 19, 1))
sketch6.addConstraint(Sketcher.Constraint("Tangent", 19, 2, 20, 2))
sketch6.addConstraint(Sketcher.Constraint("Tangent", 20, 1, 21, 1))
sketch6.addConstraint(Sketcher.Constraint("Coincident", 21, 2, 22, 1))
sketch6.addConstraint(Sketcher.Constraint("Coincident", 22, 2, 23, 1))
sketch6.addConstraint(Sketcher.Constraint("Tangent", 23, 2, 16, 1))
sketch6.addConstraint(Sketcher.Constraint("Tangent", 24, 2, 25, 1))
sketch6.addConstraint(Sketcher.Constraint("Coincident", 25, 2, 26, 1))
sketch6.addConstraint(Sketcher.Constraint("Coincident", 26, 2, 27, 1))
sketch6.addConstraint(Sketcher.Constraint("Tangent", 27, 2, 28, 2))
sketch6.addConstraint(Sketcher.Constraint("Tangent", 28, 1, 29, 1))
sketch6.addConstraint(Sketcher.Constraint("Coincident", 29, 2, 30, 1))
sketch6.addConstraint(Sketcher.Constraint("Coincident", 30, 2, 31, 1))
sketch6.addConstraint(Sketcher.Constraint("Tangent", 31, 2, 24, 1))
sketch6.addConstraint(Sketcher.Constraint("Horizontal", 1))
sketch6.addConstraint(Sketcher.Constraint("Vertical", 2))
sketch6.addConstraint(Sketcher.Constraint("Horizontal", 3))
sketch6.addConstraint(Sketcher.Constraint("Vertical", 5))
sketch6.addConstraint(Sketcher.Constraint("Horizontal", 6))
sketch6.addConstraint(Sketcher.Constraint("Vertical", 7))
sketch6.addConstraint(Sketcher.Constraint("Horizontal", 8))
sketch6.addConstraint(Sketcher.Constraint("Vertical", 10))
sketch6.addConstraint(Sketcher.Constraint("Horizontal", 11))
sketch6.addConstraint(Sketcher.Constraint("Vertical", 12))
sketch6.addConstraint(Sketcher.Constraint("Horizontal", 14))
sketch6.addConstraint(Sketcher.Constraint("Vertical", 15))
sketch6.addConstraint(Sketcher.Constraint("Vertical", 17))
sketch6.addConstraint(Sketcher.Constraint("Horizontal", 18))
sketch6.addConstraint(Sketcher.Constraint("Vertical", 19))
sketch6.addConstraint(Sketcher.Constraint("Horizontal", 21))
sketch6.addConstraint(Sketcher.Constraint("Vertical", 22))
sketch6.addConstraint(Sketcher.Constraint("Horizontal", 23))
sketch6.addConstraint(Sketcher.Constraint("Horizontal", 25))
sketch6.addConstraint(Sketcher.Constraint("Vertical", 26))
sketch6.addConstraint(Sketcher.Constraint("Horizontal", 27))
sketch6.addConstraint(Sketcher.Constraint("Vertical", 29))
sketch6.addConstraint(Sketcher.Constraint("Horizontal", 30))
sketch6.addConstraint(Sketcher.Constraint("Vertical", 31))
sketch6.addConstraint(Sketcher.Constraint("Coincident", 4, 3, 0, 3))
sketch6.addConstraint(Sketcher.Constraint("Coincident", 13, 3, 9, 3))
sketch6.addConstraint(Sketcher.Constraint("Coincident", 20, 3, 16, 3))
sketch6.addConstraint(Sketcher.Constraint("Coincident", 28, 3, 24, 3))
sketch6.addConstraint(Sketcher.Constraint("Equal", 0, 9))
sketch6.addConstraint(Sketcher.Constraint("Equal", 4, 13))
sketch6.addConstraint(Sketcher.Constraint("Equal", 9, 16))
sketch6.addConstraint(Sketcher.Constraint("Equal", 13, 20))
sketch6.addConstraint(Sketcher.Constraint("Equal", 16, 24))
sketch6.addConstraint(Sketcher.Constraint("Equal", 20, 28))
sketch6.addConstraint(Sketcher.Constraint("Symmetric", 9, 3, 16, 3, -1, 1))
sketch6.addConstraint(Sketcher.Constraint("Symmetric", 0, 3, 24, 3, -1, 1))
sketch6.addConstraint(Sketcher.Constraint("Symmetric", 0, 3, 16, 3, -2))
sketch6.addConstraint(Sketcher.Constraint("Vertical", 2, 2, 14, 2))
sketch6.addConstraint(Sketcher.Constraint("Vertical", 22, 2, 25, 2))
sketch6.addConstraint(Sketcher.Constraint("Equal", 14, 21))
sketch6.addConstraint(Sketcher.Constraint("Radius", 0, Q("1.3 mm")))
sketch6.addConstraint(Sketcher.Constraint("Radius", 4, Q("0.7 mm")))
sketch6.addConstraint(Sketcher.Constraint("DistanceX", 1, 2, 1, 1, Q("1.7 mm")))
sketch6.addConstraint(Sketcher.Constraint("DistanceY", 5, 2, 5, 1, Q("4.8 mm")))
sketch6.addConstraint(Sketcher.Constraint("DistanceY", 10, 1, 10, 2, Q("11.3 mm")))
sketch6.addConstraint(Sketcher.Constraint("DistanceY", 17, 2, 17, 1, Q("4.9 mm")))
sketch6.addConstraint(Sketcher.Constraint("DistanceY", 29, 1, 29, 2, Q("5.1 mm")))
sketch6.addConstraint(Sketcher.Constraint("DistanceX", -1, 1, 0, 3, Q("23 mm")))
sketch6.addConstraint(Sketcher.Constraint("DistanceY", -1, 1, 0, 3, Q("22 mm")))
sketch6.addConstraint(Sketcher.Constraint("DistanceX", 3, 1, 3, 2, Q("1.700008 mm")))
sketch6.setExpression("Constraints[72]", "Params.sketch6_radius")
sketch6.setExpression("Constraints[73]", "Params.sketch6_radius2")
sketch6.setExpression("Constraints[74]", "Params.sketch6_width")
sketch6.setExpression("Constraints[75]", "Params.sketch6_height")
sketch6.setExpression("Constraints[76]", "Params.sketch6_height2")
pocket3 = body.newObject("PartDesign::Pocket", "Pocket002")
pocket3.Profile = sketch6
pocket3.setExpression("Length", "Params.pocket3_length")
body2 = doc.addObject("PartDesign::Body", "Body001")
doc.recompute()

body.Placement = App.Placement(Vector(0, 0, -0.5), App.Rotation(Vector(0, 0, 1), 0))
boolean = body2.newObject("PartDesign::Boolean", "Boolean")
boolean.Type = "Fuse"
boolean.addObjects([body])

doc.recompute()
